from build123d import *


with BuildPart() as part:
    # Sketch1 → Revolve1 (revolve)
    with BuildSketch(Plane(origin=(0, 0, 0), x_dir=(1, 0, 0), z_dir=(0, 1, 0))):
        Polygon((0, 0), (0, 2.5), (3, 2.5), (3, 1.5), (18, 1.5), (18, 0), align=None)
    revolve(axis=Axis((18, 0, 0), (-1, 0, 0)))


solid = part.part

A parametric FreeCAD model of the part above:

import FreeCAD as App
import Part
import Sketcher

V = App.Vector


def add_polygon(sketch, points):
    """Adds a closed chain of lines whose ends are joined by coincident constraints."""
    first, n = sketch.GeometryCount, len(points)
    for a, b in zip(points, points[1:] + points[:1]):
        sketch.addGeometry(Part.LineSegment(App.Vector(*a, 0), App.Vector(*b, 0)), False)
    for i in range(n):
        sketch.addConstraint(Sketcher.Constraint("Coincident", first + i, 2, first + (i + 1) % n, 1))

doc = App.newDocument("Part")
body = doc.addObject("PartDesign::Body", "Body")

sketch1 = doc.addObject("Sketcher::SketchObject", "Sketch")
body.addObject(sketch1)
sketch1.AttachmentSupport = (doc.XZ_Plane, [""])
sketch1.MapMode = "FlatFace"
add_polygon(sketch1, [(0, -2.5), (0, 0), (18, 0), (18, -1.5), (3, -1.5), (3, -2.5)])
sketch1.addConstraint(Sketcher.Constraint("Vertical", 0))
sketch1.addConstraint(Sketcher.Constraint("Horizontal", 1))
sketch1.addConstraint(Sketcher.Constraint("Vertical", 2))
sketch1.addConstraint(Sketcher.Constraint("Horizontal", 3))
sketch1.addConstraint(Sketcher.Constraint("Vertical", 4))
sketch1.addConstraint(Sketcher.Constraint("Horizontal", 5))
sketch1.addConstraint(Sketcher.Constraint("Coincident", 0, 2, -1, 1))
sketch1.addConstraint(Sketcher.Constraint("DistanceX", 1, 1, 1, 2, 18.0))
sketch1.addConstraint(Sketcher.Constraint("DistanceX", 3, 2, 3, 1, 15.0))
sketch1.addConstraint(Sketcher.Constraint("DistanceY", 4, 2, 4, 1, 1.0))
sketch1.addConstraint(Sketcher.Constraint("DistanceY", 0, 1, 0, 2, 2.5))
revolution = doc.addObject("PartDesign::Revolution", "Revolution")
body.addObject(revolution)
revolution.Profile = sketch1
revolution.ReferenceAxis = (sketch1, ["H_Axis"])
revolution.Angle = 360

doc.recompute()
